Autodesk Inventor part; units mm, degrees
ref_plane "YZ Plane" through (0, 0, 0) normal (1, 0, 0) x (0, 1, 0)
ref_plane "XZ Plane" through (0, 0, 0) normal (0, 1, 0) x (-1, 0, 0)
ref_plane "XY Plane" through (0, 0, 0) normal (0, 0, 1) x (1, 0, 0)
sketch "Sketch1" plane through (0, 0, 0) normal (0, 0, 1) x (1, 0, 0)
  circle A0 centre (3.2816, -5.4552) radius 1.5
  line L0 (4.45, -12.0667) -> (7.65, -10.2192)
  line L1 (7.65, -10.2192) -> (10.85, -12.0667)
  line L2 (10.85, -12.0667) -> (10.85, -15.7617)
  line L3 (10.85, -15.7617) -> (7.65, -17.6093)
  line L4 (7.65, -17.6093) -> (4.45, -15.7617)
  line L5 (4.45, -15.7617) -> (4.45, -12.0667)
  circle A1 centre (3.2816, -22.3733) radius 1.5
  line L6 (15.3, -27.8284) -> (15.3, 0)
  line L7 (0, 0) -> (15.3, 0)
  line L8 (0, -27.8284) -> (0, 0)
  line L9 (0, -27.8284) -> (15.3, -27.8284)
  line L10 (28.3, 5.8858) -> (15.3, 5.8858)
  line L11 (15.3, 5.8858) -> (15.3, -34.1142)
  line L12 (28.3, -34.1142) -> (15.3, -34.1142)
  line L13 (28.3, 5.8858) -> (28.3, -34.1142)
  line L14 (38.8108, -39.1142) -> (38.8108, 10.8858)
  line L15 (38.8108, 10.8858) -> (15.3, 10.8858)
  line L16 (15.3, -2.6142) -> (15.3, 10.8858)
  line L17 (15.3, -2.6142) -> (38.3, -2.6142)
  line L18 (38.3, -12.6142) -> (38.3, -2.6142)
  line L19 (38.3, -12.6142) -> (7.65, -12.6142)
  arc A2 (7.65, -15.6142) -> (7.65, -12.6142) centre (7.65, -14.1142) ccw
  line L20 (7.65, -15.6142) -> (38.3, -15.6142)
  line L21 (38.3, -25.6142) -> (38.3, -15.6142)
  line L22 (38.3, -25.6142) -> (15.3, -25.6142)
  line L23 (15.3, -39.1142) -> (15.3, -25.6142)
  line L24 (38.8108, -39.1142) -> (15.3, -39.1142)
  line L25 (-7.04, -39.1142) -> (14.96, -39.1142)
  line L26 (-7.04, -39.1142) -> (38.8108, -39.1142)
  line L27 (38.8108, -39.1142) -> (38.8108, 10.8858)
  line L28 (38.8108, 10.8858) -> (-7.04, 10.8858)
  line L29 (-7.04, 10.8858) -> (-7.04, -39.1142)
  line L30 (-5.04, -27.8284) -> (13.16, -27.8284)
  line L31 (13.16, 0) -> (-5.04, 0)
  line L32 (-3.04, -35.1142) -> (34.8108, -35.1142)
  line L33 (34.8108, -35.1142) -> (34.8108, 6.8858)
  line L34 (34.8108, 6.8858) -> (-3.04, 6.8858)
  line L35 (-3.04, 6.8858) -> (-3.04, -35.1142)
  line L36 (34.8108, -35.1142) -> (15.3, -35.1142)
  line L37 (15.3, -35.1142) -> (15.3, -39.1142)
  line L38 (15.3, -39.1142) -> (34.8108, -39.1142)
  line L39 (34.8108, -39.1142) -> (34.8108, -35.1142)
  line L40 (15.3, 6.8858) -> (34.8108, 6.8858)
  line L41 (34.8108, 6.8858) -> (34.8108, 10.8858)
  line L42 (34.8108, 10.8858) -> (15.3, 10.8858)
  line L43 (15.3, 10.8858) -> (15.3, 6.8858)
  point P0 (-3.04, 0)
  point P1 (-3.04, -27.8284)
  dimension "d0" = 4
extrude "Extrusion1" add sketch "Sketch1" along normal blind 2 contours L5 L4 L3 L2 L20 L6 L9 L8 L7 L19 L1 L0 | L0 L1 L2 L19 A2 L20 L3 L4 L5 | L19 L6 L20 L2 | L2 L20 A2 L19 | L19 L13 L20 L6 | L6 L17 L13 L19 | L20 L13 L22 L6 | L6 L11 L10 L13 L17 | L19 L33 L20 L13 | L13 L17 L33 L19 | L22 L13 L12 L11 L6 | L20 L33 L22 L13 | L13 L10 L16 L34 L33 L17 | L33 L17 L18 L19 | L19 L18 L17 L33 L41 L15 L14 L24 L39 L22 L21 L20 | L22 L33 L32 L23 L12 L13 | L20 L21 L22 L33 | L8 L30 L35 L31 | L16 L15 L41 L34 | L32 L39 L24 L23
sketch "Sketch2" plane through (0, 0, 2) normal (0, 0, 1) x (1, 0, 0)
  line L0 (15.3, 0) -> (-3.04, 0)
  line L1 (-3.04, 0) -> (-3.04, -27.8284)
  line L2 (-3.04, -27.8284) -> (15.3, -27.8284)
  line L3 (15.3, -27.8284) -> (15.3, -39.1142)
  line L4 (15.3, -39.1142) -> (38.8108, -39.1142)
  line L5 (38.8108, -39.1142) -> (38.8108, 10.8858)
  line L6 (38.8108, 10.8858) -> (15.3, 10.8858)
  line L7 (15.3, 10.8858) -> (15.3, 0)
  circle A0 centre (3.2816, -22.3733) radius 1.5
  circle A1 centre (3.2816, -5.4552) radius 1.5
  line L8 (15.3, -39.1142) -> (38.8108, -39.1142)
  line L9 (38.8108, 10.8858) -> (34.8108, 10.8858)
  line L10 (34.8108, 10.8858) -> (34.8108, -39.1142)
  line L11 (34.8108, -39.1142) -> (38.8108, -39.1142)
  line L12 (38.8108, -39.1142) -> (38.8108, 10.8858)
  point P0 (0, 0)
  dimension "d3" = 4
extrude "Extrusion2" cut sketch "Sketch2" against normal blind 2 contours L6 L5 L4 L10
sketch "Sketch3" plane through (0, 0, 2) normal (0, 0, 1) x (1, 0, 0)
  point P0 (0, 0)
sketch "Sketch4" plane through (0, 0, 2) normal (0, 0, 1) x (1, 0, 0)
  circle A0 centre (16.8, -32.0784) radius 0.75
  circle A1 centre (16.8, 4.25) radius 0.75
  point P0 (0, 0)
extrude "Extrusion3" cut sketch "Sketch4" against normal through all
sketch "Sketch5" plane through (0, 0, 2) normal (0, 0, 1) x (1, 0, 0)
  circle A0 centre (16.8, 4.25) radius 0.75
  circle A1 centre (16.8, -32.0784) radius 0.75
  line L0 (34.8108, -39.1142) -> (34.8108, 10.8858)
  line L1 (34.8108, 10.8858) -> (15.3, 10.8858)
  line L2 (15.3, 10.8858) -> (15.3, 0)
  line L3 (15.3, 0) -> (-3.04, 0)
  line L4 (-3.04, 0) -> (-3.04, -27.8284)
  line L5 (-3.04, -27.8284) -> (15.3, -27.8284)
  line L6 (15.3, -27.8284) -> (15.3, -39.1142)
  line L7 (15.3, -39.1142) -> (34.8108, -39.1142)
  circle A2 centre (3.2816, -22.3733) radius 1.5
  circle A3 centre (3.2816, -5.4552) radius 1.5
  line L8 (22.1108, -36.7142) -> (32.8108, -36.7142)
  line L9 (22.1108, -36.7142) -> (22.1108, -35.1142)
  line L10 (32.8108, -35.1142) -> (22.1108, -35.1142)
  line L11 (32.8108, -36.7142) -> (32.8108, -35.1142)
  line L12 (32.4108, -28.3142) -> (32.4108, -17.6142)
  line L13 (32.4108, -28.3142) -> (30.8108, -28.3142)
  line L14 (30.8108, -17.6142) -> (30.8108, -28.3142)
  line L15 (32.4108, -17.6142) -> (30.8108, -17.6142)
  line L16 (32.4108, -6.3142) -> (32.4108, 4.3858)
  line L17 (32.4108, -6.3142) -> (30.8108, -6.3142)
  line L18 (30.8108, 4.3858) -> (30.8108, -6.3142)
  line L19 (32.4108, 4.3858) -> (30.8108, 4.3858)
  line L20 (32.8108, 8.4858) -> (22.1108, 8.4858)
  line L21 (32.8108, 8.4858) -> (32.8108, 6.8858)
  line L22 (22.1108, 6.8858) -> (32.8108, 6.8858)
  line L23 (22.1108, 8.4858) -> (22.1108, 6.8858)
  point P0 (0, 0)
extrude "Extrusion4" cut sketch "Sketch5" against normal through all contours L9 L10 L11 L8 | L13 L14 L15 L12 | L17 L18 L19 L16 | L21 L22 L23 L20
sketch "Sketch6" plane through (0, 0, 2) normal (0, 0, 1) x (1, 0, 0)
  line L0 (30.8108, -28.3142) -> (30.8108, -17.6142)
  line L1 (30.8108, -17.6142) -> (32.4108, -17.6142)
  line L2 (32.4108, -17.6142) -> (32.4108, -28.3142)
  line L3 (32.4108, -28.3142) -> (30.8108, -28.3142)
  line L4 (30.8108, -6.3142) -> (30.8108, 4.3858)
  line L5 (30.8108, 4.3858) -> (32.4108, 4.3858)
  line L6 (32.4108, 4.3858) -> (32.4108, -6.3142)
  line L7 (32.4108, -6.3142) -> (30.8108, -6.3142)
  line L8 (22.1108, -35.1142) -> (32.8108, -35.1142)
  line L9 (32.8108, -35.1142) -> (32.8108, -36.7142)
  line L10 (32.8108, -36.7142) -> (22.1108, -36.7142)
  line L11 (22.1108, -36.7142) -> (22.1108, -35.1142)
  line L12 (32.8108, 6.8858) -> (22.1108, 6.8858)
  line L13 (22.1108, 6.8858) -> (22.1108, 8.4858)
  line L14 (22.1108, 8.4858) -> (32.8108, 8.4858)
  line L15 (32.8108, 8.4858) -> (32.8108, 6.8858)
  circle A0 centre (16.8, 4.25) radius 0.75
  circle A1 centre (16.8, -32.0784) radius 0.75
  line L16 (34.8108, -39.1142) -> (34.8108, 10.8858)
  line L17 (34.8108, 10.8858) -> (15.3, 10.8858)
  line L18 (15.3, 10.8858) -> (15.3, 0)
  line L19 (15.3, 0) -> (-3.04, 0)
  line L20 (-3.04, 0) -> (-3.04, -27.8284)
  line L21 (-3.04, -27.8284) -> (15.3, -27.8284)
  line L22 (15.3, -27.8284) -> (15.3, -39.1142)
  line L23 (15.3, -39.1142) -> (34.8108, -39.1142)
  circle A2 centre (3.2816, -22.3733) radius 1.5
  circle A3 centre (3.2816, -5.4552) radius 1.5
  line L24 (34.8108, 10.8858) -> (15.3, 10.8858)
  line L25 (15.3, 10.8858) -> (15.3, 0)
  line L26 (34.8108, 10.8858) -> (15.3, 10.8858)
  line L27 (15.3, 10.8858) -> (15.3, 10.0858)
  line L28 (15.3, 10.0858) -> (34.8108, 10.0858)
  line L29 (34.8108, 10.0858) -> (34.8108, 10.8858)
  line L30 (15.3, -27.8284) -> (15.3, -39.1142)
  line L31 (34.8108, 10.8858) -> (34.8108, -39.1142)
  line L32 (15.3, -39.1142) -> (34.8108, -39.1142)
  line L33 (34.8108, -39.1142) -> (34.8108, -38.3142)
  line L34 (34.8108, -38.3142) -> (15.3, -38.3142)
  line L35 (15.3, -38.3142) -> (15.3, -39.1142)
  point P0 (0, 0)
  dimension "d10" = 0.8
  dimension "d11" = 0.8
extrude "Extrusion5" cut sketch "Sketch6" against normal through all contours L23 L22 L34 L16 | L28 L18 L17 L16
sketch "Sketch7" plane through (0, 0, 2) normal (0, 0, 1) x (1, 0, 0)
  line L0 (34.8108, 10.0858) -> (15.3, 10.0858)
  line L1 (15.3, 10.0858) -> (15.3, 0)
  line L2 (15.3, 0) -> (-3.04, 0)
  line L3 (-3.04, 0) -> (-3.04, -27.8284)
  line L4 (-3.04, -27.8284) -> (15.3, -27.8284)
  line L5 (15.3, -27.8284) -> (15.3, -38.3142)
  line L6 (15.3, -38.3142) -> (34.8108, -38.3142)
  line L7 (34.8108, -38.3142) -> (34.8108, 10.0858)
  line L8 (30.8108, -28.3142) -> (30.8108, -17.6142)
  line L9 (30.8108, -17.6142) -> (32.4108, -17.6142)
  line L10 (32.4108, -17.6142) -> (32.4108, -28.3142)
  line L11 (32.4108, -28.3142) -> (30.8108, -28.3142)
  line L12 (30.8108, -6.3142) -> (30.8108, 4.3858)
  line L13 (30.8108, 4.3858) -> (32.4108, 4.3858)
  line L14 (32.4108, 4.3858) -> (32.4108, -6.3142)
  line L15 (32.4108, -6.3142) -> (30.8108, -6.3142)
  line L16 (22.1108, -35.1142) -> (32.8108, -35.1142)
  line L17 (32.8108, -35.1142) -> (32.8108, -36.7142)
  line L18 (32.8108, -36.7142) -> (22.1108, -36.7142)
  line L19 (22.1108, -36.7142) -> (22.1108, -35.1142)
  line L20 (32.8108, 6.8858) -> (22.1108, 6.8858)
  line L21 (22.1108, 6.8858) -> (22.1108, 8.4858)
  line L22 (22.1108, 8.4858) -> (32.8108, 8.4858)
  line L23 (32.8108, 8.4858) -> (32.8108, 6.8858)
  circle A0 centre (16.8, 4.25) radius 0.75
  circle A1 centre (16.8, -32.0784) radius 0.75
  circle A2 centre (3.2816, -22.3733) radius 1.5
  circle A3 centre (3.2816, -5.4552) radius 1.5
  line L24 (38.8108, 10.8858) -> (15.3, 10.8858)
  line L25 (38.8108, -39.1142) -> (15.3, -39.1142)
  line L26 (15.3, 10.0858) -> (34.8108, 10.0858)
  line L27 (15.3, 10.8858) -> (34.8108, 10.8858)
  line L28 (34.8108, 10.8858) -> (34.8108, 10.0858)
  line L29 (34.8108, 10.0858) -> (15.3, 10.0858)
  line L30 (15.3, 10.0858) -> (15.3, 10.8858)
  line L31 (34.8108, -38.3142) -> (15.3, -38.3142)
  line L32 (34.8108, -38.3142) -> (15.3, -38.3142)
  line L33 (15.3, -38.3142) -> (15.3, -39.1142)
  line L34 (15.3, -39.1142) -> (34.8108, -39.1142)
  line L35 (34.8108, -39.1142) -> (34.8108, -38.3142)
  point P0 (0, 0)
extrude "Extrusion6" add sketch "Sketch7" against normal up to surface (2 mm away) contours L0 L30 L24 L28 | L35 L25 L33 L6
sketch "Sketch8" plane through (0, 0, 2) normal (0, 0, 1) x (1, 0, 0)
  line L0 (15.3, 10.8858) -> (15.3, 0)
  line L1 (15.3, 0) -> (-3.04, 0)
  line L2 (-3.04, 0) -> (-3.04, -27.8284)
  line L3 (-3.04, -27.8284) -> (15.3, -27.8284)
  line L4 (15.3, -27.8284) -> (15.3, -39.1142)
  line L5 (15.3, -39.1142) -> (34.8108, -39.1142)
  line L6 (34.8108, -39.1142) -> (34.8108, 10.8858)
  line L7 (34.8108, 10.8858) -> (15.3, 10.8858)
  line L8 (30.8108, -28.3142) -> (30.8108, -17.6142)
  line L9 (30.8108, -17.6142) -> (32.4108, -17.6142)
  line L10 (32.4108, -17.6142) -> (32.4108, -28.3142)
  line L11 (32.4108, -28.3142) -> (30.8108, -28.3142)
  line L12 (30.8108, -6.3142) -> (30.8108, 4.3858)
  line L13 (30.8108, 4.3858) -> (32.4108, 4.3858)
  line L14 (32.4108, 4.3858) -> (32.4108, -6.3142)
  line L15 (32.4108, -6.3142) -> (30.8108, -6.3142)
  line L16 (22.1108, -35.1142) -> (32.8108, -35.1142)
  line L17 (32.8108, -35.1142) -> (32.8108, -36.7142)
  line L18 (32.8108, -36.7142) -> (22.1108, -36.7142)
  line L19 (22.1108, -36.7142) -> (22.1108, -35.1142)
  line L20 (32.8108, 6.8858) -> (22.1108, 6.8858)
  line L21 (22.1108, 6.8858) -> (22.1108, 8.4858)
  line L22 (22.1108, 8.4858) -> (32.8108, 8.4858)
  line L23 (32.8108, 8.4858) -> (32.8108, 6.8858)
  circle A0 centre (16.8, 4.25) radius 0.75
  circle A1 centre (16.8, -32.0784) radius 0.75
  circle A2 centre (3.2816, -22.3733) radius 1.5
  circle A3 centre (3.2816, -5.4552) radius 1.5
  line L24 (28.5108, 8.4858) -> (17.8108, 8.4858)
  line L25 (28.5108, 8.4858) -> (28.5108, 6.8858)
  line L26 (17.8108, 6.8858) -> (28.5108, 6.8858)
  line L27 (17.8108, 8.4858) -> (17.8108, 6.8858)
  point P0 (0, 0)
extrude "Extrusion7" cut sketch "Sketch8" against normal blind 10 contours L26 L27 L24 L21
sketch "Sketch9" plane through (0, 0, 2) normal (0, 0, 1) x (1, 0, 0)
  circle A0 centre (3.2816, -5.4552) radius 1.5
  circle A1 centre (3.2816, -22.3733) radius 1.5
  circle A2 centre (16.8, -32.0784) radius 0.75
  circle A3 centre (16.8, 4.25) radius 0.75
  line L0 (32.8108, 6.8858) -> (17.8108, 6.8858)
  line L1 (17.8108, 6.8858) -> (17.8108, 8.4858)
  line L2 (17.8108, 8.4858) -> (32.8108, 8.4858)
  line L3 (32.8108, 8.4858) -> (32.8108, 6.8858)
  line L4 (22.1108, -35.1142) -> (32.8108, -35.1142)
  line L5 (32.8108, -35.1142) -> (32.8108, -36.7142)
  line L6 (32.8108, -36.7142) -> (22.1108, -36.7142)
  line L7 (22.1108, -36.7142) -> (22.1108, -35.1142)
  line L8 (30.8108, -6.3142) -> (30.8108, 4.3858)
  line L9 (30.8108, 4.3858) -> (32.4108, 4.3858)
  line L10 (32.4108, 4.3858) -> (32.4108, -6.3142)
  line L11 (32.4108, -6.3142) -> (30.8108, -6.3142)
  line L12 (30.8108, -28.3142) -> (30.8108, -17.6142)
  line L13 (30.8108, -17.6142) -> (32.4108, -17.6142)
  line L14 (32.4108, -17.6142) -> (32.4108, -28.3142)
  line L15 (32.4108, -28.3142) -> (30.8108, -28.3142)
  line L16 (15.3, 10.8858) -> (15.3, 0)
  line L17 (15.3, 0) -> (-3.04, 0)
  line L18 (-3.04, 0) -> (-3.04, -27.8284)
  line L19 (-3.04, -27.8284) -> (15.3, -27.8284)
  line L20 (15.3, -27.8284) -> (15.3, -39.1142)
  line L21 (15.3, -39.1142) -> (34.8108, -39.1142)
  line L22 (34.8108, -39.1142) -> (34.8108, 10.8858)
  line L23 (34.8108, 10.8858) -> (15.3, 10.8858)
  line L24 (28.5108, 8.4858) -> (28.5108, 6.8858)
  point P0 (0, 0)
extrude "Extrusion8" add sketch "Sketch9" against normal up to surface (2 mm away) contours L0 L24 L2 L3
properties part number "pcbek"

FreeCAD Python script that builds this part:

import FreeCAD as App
import Part
import Sketcher
from FreeCAD import Vector
Q = App.Units.Quantity


def add_polygon(sketch, points):
    """Adds a closed chain of lines whose ends are joined by coincident constraints."""
    first, n = sketch.GeometryCount, len(points)
    for a, b in zip(points, points[1:] + points[:1]):
        sketch.addGeometry(Part.LineSegment(App.Vector(*a, 0), App.Vector(*b, 0)), False)
    for i in range(n):
        sketch.addConstraint(Sketcher.Constraint("Coincident", first + i, 2, first + (i + 1) % n, 1))

doc = App.newDocument("Part")
body = doc.addObject("PartDesign::Body", "Body")

# Sketch on XY plane
sketch1 = body.newObject("Sketcher::SketchObject", "Sketch")
sketch1.AttachmentSupport = (doc.getObject("XY_Plane"), [""])
sketch1.MapMode = "FlatFace"
add_polygon(sketch1, [(15.3, -27.8284), (15.3, -39.1142), (38.8108, -39.1142), (38.8108, 10.8858), (15.3, 10.8858), (15.3, 0), (-3.04, 0), (-3.04, -27.8284)])  # lines 0-7
sketch1.addGeometry(Part.Circle(Vector(3.2816, -22.3733, 0), Vector(0, 0, 1), 1.5), False)  # 8
sketch1.addGeometry(Part.Circle(Vector(3.2816, -5.4552, 0), Vector(0, 0, 1), 1.5), False)  # 9
sketch1.addConstraint([
    Sketcher.Constraint("Vertical", 0),
    Sketcher.Constraint("Horizontal", 1),
    Sketcher.Constraint("Vertical", 2),
    Sketcher.Constraint("Horizontal", 3),
    Sketcher.Constraint("Vertical", 4),
    Sketcher.Constraint("Horizontal", 5),
    Sketcher.Constraint("Vertical", 6),
    Sketcher.Constraint("Horizontal", 7),
    Sketcher.Constraint("Equal", 8, 9),
    Sketcher.Constraint("PointOnObject", 4, 2, -1),
    Sketcher.Constraint("Vertical", 8, 3, 9, 3),
    Sketcher.Constraint("Vertical", 0, 2, 3, 2),
    Sketcher.Constraint("Diameter", 8, Q("3 mm")),
    Sketcher.Constraint("DistanceY", 2, 1, 2, 2, Q("50 mm")),
    Sketcher.Constraint("DistanceX", 5, 2, 5, 1, Q("18.34 mm")),
    Sketcher.Constraint("DistanceX", -1, 1, 0, 2, Q("15.3 mm")),
    Sketcher.Constraint("DistanceX", 1, 1, 1, 2, Q("23.5108 mm")),
    Sketcher.Constraint("DistanceY", 0, 2, 0, 1, Q("11.2858 mm")),
    Sketcher.Constraint("DistanceY", 4, 2, 4, 1, Q("10.8858 mm")),
    Sketcher.Constraint("DistanceY", 8, 3, 9, 3, Q("16.918 mm")),
    Sketcher.Constraint("DistanceY", 0, 2, 8, 3, Q("16.741 mm")),
    Sketcher.Constraint("DistanceX", -1, 1, 8, 3, Q("3.2816 mm")),
])
pad1 = body.newObject("PartDesign::Pad", "Pad")
pad1.Profile = sketch1
pad1.Length = 2

# Sketch on XY plane
sketch2 = body.newObject("Sketcher::SketchObject", "Sketch001")
sketch2.AttachmentSupport = (doc.getObject("XY_Plane"), [""])
sketch2.MapMode = "FlatFace"
sketch2.AttachmentOffset = App.Placement(Vector(0, 0, 2), App.Rotation())
add_polygon(sketch2, [(38.8108, 10.8858), (34.8108, 10.8858), (34.8108, -39.1142), (38.8108, -39.1142)])  # lines 0-3
sketch2.addConstraint([
    Sketcher.Constraint("Horizontal", 0),
    Sketcher.Constraint("Vertical", 1),
    Sketcher.Constraint("Horizontal", 2),
    Sketcher.Constraint("Vertical", 3),
    Sketcher.Constraint("DistanceX", 0, 2, 0, 1, Q("4 mm")),
    Sketcher.Constraint("DistanceY", 1, 2, 1, 1, Q("50 mm")),
    Sketcher.Constraint("DistanceX", -1, 1, 0, 2, Q("34.8108 mm")),
    Sketcher.Constraint("DistanceY", -1, 1, 0, 2, Q("10.8858 mm")),
])
pocket1 = body.newObject("PartDesign::Pocket", "Pocket")
pocket1.Profile = sketch2
pocket1.Length = 2

# Sketch on XY plane
sketch3 = body.newObject("Sketcher::SketchObject", "Sketch002")
sketch3.AttachmentSupport = (doc.getObject("XY_Plane"), [""])
sketch3.MapMode = "FlatFace"
sketch3.AttachmentOffset = App.Placement(Vector(0, 0, 2), App.Rotation())
sketch3.addGeometry([
    Part.Circle(Vector(16.8, -32.0784, 0), Vector(0, 0, 1), 0.75),
    Part.Circle(Vector(16.8, 4.25, 0), Vector(0, 0, 1), 0.75),
], False)
sketch3.addConstraint([
    Sketcher.Constraint("Equal", 0, 1),
    Sketcher.Constraint("Vertical", 0, 3, 1, 3),
    Sketcher.Constraint("Diameter", 0, Q("1.5 mm")),
    Sketcher.Constraint("DistanceX", -1, 1, 0, 3, Q("16.8 mm")),
    Sketcher.Constraint("DistanceY", -1, 1, 1, 3, Q("4.25 mm")),
    Sketcher.Constraint("DistanceY", 0, 3, -1, 1, Q("32.0784 mm")),
])
pocket2 = body.newObject("PartDesign::Pocket", "Pocket001")
pocket2.Profile = sketch3
pocket2.Type = "ThroughAll"

# Sketch on XY plane
sketch4 = body.newObject("Sketcher::SketchObject", "Sketch003")
sketch4.AttachmentSupport = (doc.getObject("XY_Plane"), [""])
sketch4.MapMode = "FlatFace"
sketch4.AttachmentOffset = App.Placement(Vector(0, 0, 2), App.Rotation())
add_polygon(sketch4, [(22.1108, -35.1142), (22.1108, -36.7142), (32.8108, -36.7142), (32.8108, -35.1142)])  # lines 0-3
add_polygon(sketch4, [(30.8108, -28.3142), (32.4108, -28.3142), (32.4108, -17.6142), (30.8108, -17.6142)])  # lines 4-7
add_polygon(sketch4, [(30.8108, -6.3142), (32.4108, -6.3142), (32.4108, 4.3858), (30.8108, 4.3858)])  # lines 8-11
add_polygon(sketch4, [(32.8108, 6.8858), (32.8108, 8.4858), (22.1108, 8.4858), (22.1108, 6.8858)])  # lines 12-15
sketch4.addConstraint([
    Sketcher.Constraint("Vertical", 0),
    Sketcher.Constraint("Horizontal", 1),
    Sketcher.Constraint("Vertical", 2),
    Sketcher.Constraint("Horizontal", 3),
    Sketcher.Constraint("Horizontal", 4),
    Sketcher.Constraint("Vertical", 5),
    Sketcher.Constraint("Horizontal", 6),
    Sketcher.Constraint("Vertical", 7),
    Sketcher.Constraint("Horizontal", 8),
    Sketcher.Constraint("Vertical", 9),
    Sketcher.Constraint("Horizontal", 10),
    Sketcher.Constraint("Vertical", 11),
    Sketcher.Constraint("Vertical", 12),
    Sketcher.Constraint("Horizontal", 13),
    Sketcher.Constraint("Vertical", 14),
    Sketcher.Constraint("Horizontal", 15),
    Sketcher.Constraint("Vertical", 5, 2, 8, 2),
    Sketcher.Constraint("Vertical", 7, 2, 10, 2),
    Sketcher.Constraint("Vertical", 2, 2, 12, 2),
    Sketcher.Constraint("Vertical", 3, 2, 13, 2),
    Sketcher.Constraint("Equal", 10, 0),
    Sketcher.Constraint("Equal", 15, 5),
    Sketcher.Constraint("Equal", 7, 9),
    Sketcher.Constraint("Equal", 2, 12),
    Sketcher.Constraint("DistanceX", 1, 1, 1, 2, Q("10.7 mm")),
    Sketcher.Constraint("DistanceX", 4, 1, 4, 2, Q("1.6 mm")),
    Sketcher.Constraint("DistanceX", 6, 2, 2, 2, Q("2 mm")),
    Sketcher.Constraint("DistanceY", 4, 2, 8, 2, Q("22 mm")),
    Sketcher.Constraint("DistanceY", 2, 2, 4, 2, Q("6.8 mm")),
    Sketcher.Constraint("DistanceY", 9, 2, 12, 2, Q("4.1 mm")),
    Sketcher.Constraint("DistanceX", -1, 1, 0, 2, Q("22.1108 mm")),
    Sketcher.Constraint("DistanceY", 0, 2, -1, 1, Q("36.7142 mm")),
])
pocket3 = body.newObject("PartDesign::Pocket", "Pocket002")
pocket3.Profile = sketch4
pocket3.Type = "ThroughAll"

# Sketch on XY plane
sketch5 = body.newObject("Sketcher::SketchObject", "Sketch004")
sketch5.AttachmentSupport = (doc.getObject("XY_Plane"), [""])
sketch5.MapMode = "FlatFace"
sketch5.AttachmentOffset = App.Placement(Vector(0, 0, 2), App.Rotation())
add_polygon(sketch5, [(15.3, -39.1142), (34.8108, -39.1142), (34.8108, -38.3142), (15.3, -38.3142)])  # lines 0-3
add_polygon(sketch5, [(15.3, 10.0858), (34.8108, 10.0858), (34.8108, 10.8858), (15.3, 10.8858)])  # lines 4-7
sketch5.addConstraint([
    Sketcher.Constraint("Horizontal", 0),
    Sketcher.Constraint("Vertical", 1),
    Sketcher.Constraint("Horizontal", 2),
    Sketcher.Constraint("Vertical", 3),
    Sketcher.Constraint("Horizontal", 4),
    Sketcher.Constraint("Vertical", 5),
    Sketcher.Constraint("Horizontal", 6),
    Sketcher.Constraint("Vertical", 7),
    Sketcher.Constraint("Vertical", 1, 2, 4, 2),
    Sketcher.Constraint("Vertical", 3, 2, 6, 2),
    Sketcher.Constraint("Equal", 3, 5),
    Sketcher.Constraint("DistanceY", 1, 1, 1, 2, Q("0.8 mm")),
    Sketcher.Constraint("DistanceY", 0, 2, 5, 2, Q("50 mm")),
    Sketcher.Constraint("DistanceX", -1, 1, 2, 2, Q("15.3 mm")),
    Sketcher.Constraint("DistanceX", 0, 1, 0, 2, Q("19.5108 mm")),
    Sketcher.Constraint("DistanceY", 0, 2, -1, 1, Q("39.1142 mm")),
])
pocket4 = body.newObject("PartDesign::Pocket", "Pocket003")
pocket4.Profile = sketch5
pocket4.Type = "ThroughAll"

# Sketch on XY plane
sketch6 = body.newObject("Sketcher::SketchObject", "Sketch005")
sketch6.AttachmentSupport = (doc.getObject("XY_Plane"), [""])
sketch6.MapMode = "FlatFace"
sketch6.AttachmentOffset = App.Placement(Vector(0, 0, 2), App.Rotation())
add_polygon(sketch6, [(15.3, 10.0858), (34.8108, 10.0858), (34.8108, 10.8858), (15.3, 10.8858)])  # lines 0-3
add_polygon(sketch6, [(34.8108, -39.1142), (34.8108, -38.3142), (15.3, -38.3142), (15.3, -39.1142)])  # lines 4-7
sketch6.addConstraint([
    Sketcher.Constraint("Horizontal", 0),
    Sketcher.Constraint("Vertical", 1),
    Sketcher.Constraint("Horizontal", 2),
    Sketcher.Constraint("Vertical", 3),
    Sketcher.Constraint("Vertical", 4),
    Sketcher.Constraint("Horizontal", 5),
    Sketcher.Constraint("Vertical", 6),
    Sketcher.Constraint("Horizontal", 7),
    Sketcher.Constraint("Vertical", 1, 2, 4, 2),
    Sketcher.Constraint("Vertical", 3, 2, 5, 2),
    Sketcher.Constraint("Equal", 3, 4),
    Sketcher.Constraint("DistanceY", 1, 1, 1, 2, Q("0.8 mm")),
    Sketcher.Constraint("DistanceY", 6, 2, 2, 2, Q("50 mm")),
    Sketcher.Constraint("DistanceX", -1, 1, 2, 2, Q("15.3 mm")),
    Sketcher.Constraint("DistanceX", 0, 1, 0, 2, Q("19.5108 mm")),
    Sketcher.Constraint("DistanceY", -1, 1, 0, 2, Q("10.0858 mm")),
])
pad2 = body.newObject("PartDesign::Pad", "Pad001")
pad2.Profile = sketch6
pad2.Length = 2
pad2.Reversed = True

# Sketch on XY plane
sketch7 = body.newObject("Sketcher::SketchObject", "Sketch006")
sketch7.AttachmentSupport = (doc.getObject("XY_Plane"), [""])
sketch7.MapMode = "FlatFace"
sketch7.AttachmentOffset = App.Placement(Vector(0, 0, 2), App.Rotation())
add_polygon(sketch7, [(17.8108, 6.8858), (22.1108, 6.8858), (22.1108, 8.4858), (17.8108, 8.4858)])  # lines 0-3
sketch7.addConstraint([
    Sketcher.Constraint("Horizontal", 0),
    Sketcher.Constraint("Vertical", 1),
    Sketcher.Constraint("Horizontal", 2),
    Sketcher.Constraint("Vertical", 3),
    Sketcher.Constraint("DistanceX", 0, 1, 0, 2, Q("4.3 mm")),
    Sketcher.Constraint("DistanceY", 1, 1, 1, 2, Q("1.6 mm")),
    Sketcher.Constraint("DistanceX", -1, 1, 0, 2, Q("22.1108 mm")),
    Sketcher.Constraint("DistanceY", -1, 1, 0, 2, Q("6.8858 mm")),
])
pocket5 = body.newObject("PartDesign::Pocket", "Pocket004")
pocket5.Profile = sketch7
pocket5.Length = 10

# Sketch on XY plane
sketch8 = body.newObject("Sketcher::SketchObject", "Sketch007")
sketch8.AttachmentSupport = (doc.getObject("XY_Plane"), [""])
sketch8.MapMode = "FlatFace"
sketch8.AttachmentOffset = App.Placement(Vector(0, 0, 2), App.Rotation())
add_polygon(sketch8, [(28.5108, 6.8858), (32.8108, 6.8858), (32.8108, 8.4858), (28.5108, 8.4858)])  # lines 0-3
sketch8.addConstraint([
    Sketcher.Constraint("Horizontal", 0),
    Sketcher.Constraint("Vertical", 1),
    Sketcher.Constraint("Horizontal", 2),
    Sketcher.Constraint("Vertical", 3),
    Sketcher.Constraint("DistanceX", 0, 1, 0, 2, Q("4.3 mm")),
    Sketcher.Constraint("DistanceY", 1, 1, 1, 2, Q("1.6 mm")),
    Sketcher.Constraint("DistanceX", -1, 1, 0, 2, Q("32.8108 mm")),
    Sketcher.Constraint("DistanceY", -1, 1, 0, 2, Q("6.8858 mm")),
])
pad3 = body.newObject("PartDesign::Pad", "Pad002")
pad3.Profile = sketch8
pad3.Length = 2
pad3.Reversed = True

doc.recompute()
